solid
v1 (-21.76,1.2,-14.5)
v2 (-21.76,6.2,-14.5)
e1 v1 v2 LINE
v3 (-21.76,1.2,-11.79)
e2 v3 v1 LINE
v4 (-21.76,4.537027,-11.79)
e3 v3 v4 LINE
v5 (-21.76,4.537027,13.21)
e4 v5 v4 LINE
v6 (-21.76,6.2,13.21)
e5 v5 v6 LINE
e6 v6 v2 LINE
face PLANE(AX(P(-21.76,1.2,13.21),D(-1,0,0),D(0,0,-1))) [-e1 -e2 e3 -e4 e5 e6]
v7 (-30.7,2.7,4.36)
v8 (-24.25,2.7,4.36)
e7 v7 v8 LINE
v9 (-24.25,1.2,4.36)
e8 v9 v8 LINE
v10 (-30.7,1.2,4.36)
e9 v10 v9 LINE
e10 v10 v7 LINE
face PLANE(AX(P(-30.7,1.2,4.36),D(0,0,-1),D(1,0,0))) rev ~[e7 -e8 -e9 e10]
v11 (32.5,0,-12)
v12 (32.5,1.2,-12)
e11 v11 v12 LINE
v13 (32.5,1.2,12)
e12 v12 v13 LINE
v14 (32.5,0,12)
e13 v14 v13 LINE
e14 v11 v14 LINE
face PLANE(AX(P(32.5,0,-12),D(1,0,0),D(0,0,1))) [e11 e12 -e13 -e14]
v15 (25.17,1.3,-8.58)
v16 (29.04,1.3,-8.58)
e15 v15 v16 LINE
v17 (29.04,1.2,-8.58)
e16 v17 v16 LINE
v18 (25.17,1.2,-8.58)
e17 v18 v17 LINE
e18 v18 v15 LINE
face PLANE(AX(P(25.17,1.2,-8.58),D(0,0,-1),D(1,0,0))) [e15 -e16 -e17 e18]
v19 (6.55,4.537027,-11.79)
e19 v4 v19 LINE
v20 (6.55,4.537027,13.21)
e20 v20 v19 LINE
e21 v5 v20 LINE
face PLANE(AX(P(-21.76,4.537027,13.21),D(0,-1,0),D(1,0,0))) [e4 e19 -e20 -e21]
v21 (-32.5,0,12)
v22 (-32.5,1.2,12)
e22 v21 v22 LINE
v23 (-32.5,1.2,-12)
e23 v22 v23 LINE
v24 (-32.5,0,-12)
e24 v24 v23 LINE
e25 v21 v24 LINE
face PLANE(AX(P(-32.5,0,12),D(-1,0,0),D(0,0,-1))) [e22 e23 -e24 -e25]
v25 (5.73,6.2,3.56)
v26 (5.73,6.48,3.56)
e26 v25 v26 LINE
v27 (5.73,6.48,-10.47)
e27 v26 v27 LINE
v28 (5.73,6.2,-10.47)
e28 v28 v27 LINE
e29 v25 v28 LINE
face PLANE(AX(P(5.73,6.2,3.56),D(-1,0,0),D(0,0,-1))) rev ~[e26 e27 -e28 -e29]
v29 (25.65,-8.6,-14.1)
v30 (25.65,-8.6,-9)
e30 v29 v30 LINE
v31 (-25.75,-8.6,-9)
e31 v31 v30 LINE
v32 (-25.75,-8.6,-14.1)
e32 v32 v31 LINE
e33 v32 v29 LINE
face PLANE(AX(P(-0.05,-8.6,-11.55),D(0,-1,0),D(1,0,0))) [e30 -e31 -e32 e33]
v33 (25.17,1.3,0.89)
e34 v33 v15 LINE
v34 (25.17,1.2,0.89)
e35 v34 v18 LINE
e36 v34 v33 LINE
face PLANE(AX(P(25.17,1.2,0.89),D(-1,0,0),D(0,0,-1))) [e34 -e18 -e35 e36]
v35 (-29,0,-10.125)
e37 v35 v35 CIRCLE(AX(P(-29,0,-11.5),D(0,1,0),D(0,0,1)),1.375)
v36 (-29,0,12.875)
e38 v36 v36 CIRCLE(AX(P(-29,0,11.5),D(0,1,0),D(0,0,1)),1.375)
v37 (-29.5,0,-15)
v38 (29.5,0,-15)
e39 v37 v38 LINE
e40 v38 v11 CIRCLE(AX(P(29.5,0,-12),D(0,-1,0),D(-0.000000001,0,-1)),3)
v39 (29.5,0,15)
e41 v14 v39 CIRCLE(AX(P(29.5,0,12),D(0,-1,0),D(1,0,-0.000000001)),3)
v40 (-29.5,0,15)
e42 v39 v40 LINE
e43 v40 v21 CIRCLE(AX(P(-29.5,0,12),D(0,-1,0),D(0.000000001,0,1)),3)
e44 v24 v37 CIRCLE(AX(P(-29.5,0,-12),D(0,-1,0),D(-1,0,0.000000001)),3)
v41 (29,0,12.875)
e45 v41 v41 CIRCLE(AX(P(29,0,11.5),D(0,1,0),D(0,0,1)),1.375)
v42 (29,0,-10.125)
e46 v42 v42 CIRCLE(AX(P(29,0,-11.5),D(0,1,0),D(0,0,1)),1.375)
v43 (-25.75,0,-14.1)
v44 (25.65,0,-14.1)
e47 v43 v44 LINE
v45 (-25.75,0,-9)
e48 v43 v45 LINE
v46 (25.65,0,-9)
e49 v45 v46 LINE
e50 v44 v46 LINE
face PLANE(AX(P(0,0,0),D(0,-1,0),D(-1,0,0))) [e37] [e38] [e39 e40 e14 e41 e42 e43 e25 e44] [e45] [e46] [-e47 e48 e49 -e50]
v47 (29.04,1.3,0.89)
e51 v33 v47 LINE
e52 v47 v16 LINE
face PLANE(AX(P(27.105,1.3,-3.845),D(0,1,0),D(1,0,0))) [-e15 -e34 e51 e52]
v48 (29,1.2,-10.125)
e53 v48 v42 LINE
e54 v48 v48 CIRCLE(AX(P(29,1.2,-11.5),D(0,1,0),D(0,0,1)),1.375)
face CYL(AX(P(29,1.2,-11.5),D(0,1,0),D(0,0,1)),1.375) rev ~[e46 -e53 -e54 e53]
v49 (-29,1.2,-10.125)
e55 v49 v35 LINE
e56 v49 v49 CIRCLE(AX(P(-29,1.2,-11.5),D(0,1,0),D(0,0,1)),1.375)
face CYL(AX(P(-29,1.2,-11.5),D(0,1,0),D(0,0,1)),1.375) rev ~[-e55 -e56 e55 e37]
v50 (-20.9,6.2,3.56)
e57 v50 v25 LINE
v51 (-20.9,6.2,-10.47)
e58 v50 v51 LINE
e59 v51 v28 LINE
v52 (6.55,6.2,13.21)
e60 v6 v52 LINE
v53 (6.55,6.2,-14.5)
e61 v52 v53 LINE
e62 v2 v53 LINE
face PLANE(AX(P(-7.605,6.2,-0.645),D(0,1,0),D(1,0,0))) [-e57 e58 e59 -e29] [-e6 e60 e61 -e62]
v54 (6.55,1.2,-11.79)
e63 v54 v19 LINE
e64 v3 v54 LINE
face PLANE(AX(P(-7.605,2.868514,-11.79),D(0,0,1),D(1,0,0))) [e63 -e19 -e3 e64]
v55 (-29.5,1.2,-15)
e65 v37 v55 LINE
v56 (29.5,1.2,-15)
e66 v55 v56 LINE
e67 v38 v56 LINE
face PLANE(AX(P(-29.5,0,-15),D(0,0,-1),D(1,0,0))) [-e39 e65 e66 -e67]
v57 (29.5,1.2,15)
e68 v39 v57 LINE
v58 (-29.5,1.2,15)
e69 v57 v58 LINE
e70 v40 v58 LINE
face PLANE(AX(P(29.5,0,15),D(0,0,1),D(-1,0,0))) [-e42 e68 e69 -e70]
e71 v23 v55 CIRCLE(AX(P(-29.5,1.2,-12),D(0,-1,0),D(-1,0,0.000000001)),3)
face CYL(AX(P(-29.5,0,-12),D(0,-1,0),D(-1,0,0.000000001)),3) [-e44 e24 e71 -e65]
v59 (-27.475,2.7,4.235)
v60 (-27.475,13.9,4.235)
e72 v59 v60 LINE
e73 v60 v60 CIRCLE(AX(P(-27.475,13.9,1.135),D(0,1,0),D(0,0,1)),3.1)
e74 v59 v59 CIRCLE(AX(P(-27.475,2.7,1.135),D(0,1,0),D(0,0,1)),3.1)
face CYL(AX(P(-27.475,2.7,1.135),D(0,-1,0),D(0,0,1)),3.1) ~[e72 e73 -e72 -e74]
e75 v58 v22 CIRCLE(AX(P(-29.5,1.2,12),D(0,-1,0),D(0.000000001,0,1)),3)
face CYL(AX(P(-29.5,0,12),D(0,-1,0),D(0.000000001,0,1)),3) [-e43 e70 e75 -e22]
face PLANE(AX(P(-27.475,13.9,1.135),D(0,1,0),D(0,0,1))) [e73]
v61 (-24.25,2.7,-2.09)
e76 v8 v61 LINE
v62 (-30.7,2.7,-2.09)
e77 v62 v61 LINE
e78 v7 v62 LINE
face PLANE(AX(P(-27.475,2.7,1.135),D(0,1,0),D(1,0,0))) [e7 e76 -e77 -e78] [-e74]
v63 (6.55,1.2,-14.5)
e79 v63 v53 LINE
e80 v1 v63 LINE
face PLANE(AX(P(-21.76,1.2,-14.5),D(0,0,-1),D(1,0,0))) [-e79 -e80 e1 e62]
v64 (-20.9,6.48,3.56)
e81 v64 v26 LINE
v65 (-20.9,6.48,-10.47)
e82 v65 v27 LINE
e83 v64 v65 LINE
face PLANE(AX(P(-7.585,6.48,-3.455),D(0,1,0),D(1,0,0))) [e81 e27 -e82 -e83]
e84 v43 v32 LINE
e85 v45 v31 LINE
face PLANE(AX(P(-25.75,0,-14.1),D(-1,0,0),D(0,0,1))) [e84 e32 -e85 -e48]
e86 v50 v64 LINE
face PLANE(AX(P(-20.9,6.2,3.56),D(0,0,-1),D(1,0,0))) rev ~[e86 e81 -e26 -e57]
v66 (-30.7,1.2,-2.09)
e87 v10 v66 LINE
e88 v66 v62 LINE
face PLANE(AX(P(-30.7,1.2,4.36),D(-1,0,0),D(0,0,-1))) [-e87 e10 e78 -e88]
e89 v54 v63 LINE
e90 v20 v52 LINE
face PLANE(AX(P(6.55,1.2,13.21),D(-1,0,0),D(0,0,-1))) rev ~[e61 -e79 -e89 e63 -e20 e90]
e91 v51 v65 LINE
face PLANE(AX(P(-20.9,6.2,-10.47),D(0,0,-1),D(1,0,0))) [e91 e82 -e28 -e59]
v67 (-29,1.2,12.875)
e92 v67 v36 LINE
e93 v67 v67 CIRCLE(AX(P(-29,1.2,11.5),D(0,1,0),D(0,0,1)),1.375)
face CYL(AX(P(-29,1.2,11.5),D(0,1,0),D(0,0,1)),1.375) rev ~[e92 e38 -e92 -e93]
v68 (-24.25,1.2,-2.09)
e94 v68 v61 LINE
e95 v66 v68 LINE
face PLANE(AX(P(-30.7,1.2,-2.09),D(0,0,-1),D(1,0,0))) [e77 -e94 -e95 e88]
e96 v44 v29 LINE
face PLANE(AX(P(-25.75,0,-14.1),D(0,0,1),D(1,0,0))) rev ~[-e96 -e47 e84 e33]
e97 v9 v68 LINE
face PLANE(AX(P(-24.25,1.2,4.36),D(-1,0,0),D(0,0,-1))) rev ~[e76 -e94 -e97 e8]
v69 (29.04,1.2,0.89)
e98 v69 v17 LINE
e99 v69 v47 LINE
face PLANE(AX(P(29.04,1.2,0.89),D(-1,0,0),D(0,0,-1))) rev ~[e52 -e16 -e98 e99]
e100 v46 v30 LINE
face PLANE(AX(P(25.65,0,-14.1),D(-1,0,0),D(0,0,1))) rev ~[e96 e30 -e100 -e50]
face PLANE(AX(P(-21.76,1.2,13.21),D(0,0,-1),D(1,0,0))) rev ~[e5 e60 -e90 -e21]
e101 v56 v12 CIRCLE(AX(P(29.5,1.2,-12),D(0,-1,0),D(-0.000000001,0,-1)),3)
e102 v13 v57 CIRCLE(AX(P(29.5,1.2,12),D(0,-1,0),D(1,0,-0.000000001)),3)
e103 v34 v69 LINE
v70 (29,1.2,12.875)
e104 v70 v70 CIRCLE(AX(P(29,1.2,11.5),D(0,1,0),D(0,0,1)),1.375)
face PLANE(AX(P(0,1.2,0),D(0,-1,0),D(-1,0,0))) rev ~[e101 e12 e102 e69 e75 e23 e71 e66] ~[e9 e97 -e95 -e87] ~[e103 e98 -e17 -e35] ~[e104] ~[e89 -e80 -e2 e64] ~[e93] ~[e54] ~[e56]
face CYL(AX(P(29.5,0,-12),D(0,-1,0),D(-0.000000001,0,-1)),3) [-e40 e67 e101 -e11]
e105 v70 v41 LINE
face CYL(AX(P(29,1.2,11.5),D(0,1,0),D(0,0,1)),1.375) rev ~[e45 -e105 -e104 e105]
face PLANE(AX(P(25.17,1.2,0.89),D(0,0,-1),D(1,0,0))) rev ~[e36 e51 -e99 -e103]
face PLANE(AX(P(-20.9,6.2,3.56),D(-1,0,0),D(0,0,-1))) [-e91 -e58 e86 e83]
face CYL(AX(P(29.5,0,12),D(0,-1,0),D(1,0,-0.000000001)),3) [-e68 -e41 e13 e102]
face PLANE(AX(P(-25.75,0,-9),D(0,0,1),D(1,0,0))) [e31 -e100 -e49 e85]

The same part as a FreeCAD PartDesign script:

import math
import FreeCAD as App
import Part
import Sketcher

doc = App.newDocument("Part")
params = doc.addObject("Spreadsheet::Sheet", "Params")
for row, (alias, value) in enumerate([
    ("sketch1_radius", "3 mm"),
    ("sketch1_width", "59 mm"),
    ("sketch1_height", "24 mm"),
    ("pad1_length", "1.2 mm"),
    ("sketch2_diameter", "2.75 mm"),
    ("pocket1_length", "1.2 mm"),
    ("sketch3_width", "51.4 mm"),
    ("sketch3_height", "5.1 mm"),
    ("pad2_length", "8.6 mm"),
    ("sketch4_width", "6.45 mm"),
    ("pad3_length", "1.5 mm"),
    ("sketch5_diameter", "6.2 mm"),
    ("pad4_length", "11.2 mm"),
    ("sketch6_width", "28.31 mm"),
    ("sketch6_height", "27.71 mm"),
    ("pad5_length", "5 mm"),
    ("sketch7_width", "26.63 mm"),
    ("sketch7_height", "14.03 mm"),
    ("pad6_length", "0.28 mm"),
    ("sketch8_width", "3.87 mm"),
    ("sketch8_height", "9.47 mm"),
    ("pad7_length", "0.1 mm"),
    ("sketch9_width", "28.31 mm"),
    ("pocket2_length", "25 mm"),
], start=1):
    params.set(f"A{row}", alias)
    params.set(f"B{row}", "=" + value)
    params.setAlias(f"B{row}", alias)

body = doc.addObject("PartDesign::Body", "Body")

# Sketch on XZ plane
sketch1 = body.newObject("Sketcher::SketchObject", "Sketch")
sketch1.AttachmentSupport = (doc.getObject("XZ_Plane"), [""])
sketch1.MapMode = "FlatFace"
sketch1.addGeometry(Part.LineSegment(App.Vector(29.5, -15, 0), App.Vector(-29.5, -15, 0)), False)
sketch1.addGeometry(Part.ArcOfCircle(Part.Circle(App.Vector(-29.5, -12, 0), App.Vector(0, 0, 1), 3), math.radians(180), math.radians(270)), False)
sketch1.addGeometry(Part.LineSegment(App.Vector(-32.5, -12, 0), App.Vector(-32.5, 12, 0)), False)
sketch1.addGeometry(Part.ArcOfCircle(Part.Circle(App.Vector(-29.5, 12, 0), App.Vector(0, 0, 1), 3), math.radians(90), math.radians(180)), False)
sketch1.addGeometry(Part.LineSegment(App.Vector(-29.5, 15, 0), App.Vector(29.5, 15, 0)), False)
sketch1.addGeometry(Part.ArcOfCircle(Part.Circle(App.Vector(29.5, 12, 0), App.Vector(0, 0, 1), 3), math.radians(0), math.radians(90)), False)
sketch1.addGeometry(Part.LineSegment(App.Vector(32.5, 12, 0), App.Vector(32.5, -12, 0)), False)
sketch1.addGeometry(Part.ArcOfCircle(Part.Circle(App.Vector(29.5, -12, 0), App.Vector(0, 0, 1), 3), math.radians(-90), math.radians(0)), False)
sketch1.addConstraint(Sketcher.Constraint("Tangent", 0, 2, 1, 2))
sketch1.addConstraint(Sketcher.Constraint("Tangent", 1, 1, 2, 1))
sketch1.addConstraint(Sketcher.Constraint("Tangent", 2, 2, 3, 2))
sketch1.addConstraint(Sketcher.Constraint("Tangent", 3, 1, 4, 1))
sketch1.addConstraint(Sketcher.Constraint("Tangent", 4, 2, 5, 2))
sketch1.addConstraint(Sketcher.Constraint("Tangent", 5, 1, 6, 1))
sketch1.addConstraint(Sketcher.Constraint("Tangent", 6, 2, 7, 2))
sketch1.addConstraint(Sketcher.Constraint("Tangent", 7, 1, 0, 1))
sketch1.addConstraint(Sketcher.Constraint("Horizontal", 0))
sketch1.addConstraint(Sketcher.Constraint("Vertical", 2))
sketch1.addConstraint(Sketcher.Constraint("Horizontal", 4))
sketch1.addConstraint(Sketcher.Constraint("Vertical", 6))
sketch1.addConstraint(Sketcher.Constraint("Equal", 1, 3))
sketch1.addConstraint(Sketcher.Constraint("Equal", 3, 5))
sketch1.addConstraint(Sketcher.Constraint("Equal", 5, 7))
sketch1.addConstraint(Sketcher.Constraint("Symmetric", 1, 3, 5, 3, -1, 1))
sketch1.addConstraint(Sketcher.Constraint("Radius", 1, 3.0))
sketch1.addConstraint(Sketcher.Constraint("DistanceX", 0, 2, 0, 1, 59.0))
sketch1.addConstraint(Sketcher.Constraint("DistanceY", 2, 1, 2, 2, 24.0))
sketch1.setExpression("Constraints[16]", "Params.sketch1_radius")
sketch1.setExpression("Constraints[17]", "Params.sketch1_width")
sketch1.setExpression("Constraints[18]", "Params.sketch1_height")
pad1 = body.newObject("PartDesign::Pad", "Pad")
pad1.Profile = sketch1
pad1.setExpression("Length", "Params.pad1_length")
pad1.Reversed = True

# Sketch on XZ plane
sketch2 = body.newObject("Sketcher::SketchObject", "Sketch001")
sketch2.AttachmentSupport = (doc.getObject("XZ_Plane"), [""])
sketch2.MapMode = "FlatFace"
sketch2.AttachmentOffset = App.Placement(App.Vector(0, 0, -1.2), App.Rotation())
sketch2.addGeometry(Part.Circle(App.Vector(29, 11.5, 0), App.Vector(0, 0, 1), 1.4), False)
sketch2.addGeometry(Part.Circle(App.Vector(29, -11.5, 0), App.Vector(0, 0, 1), 1.4), False)
sketch2.addGeometry(Part.Circle(App.Vector(-29, 11.5, 0), App.Vector(0, 0, 1), 1.4), False)
sketch2.addGeometry(Part.Circle(App.Vector(-29, -11.5, 0), App.Vector(0, 0, 1), 1.4), False)
sketch2.addConstraint(Sketcher.Constraint("Equal", 0, 1))
sketch2.addConstraint(Sketcher.Constraint("Equal", 1, 2))
sketch2.addConstraint(Sketcher.Constraint("Equal", 2, 3))
sketch2.addConstraint(Sketcher.Constraint("Symmetric", 1, 3, 2, 3, -1, 1))
sketch2.addConstraint(Sketcher.Constraint("Symmetric", 0, 3, 3, 3, -1, 1))
sketch2.addConstraint(Sketcher.Constraint("Symmetric", 0, 3, 2, 3, -2))
sketch2.addConstraint(Sketcher.Constraint("Diameter", 0, 2.75))
sketch2.addConstraint(Sketcher.Constraint("DistanceX", -1, 1, 0, 3, 29.0))
sketch2.addConstraint(Sketcher.Constraint("DistanceY", 1, 3, 0, 3, 23.0))
sketch2.setExpression("Constraints[6]", "Params.sketch2_diameter")
pocket1 = body.newObject("PartDesign::Pocket", "Pocket")
pocket1.Profile = sketch2
pocket1.setExpression("Length", "Params.pocket1_length")
pocket1.Reversed = True

# Sketch on XZ plane
sketch3 = body.newObject("Sketcher::SketchObject", "Sketch002")
sketch3.AttachmentSupport = (doc.getObject("XZ_Plane"), [""])
sketch3.MapMode = "FlatFace"
sketch3.addGeometry(Part.LineSegment(App.Vector(-26, -9, 0), App.Vector(-26, -14, 0)), False)
sketch3.addGeometry(Part.LineSegment(App.Vector(-26, -14, 0), App.Vector(26, -14, 0)), False)
sketch3.addGeometry(Part.LineSegment(App.Vector(26, -14, 0), App.Vector(26, -9, 0)), False)
sketch3.addGeometry(Part.LineSegment(App.Vector(26, -9, 0), App.Vector(-26, -9, 0)), False)
sketch3.addConstraint(Sketcher.Constraint("Coincident", 0, 2, 1, 1))
sketch3.addConstraint(Sketcher.Constraint("Coincident", 1, 2, 2, 1))
sketch3.addConstraint(Sketcher.Constraint("Coincident", 2, 2, 3, 1))
sketch3.addConstraint(Sketcher.Constraint("Coincident", 3, 2, 0, 1))
sketch3.addConstraint(Sketcher.Constraint("Vertical", 0))
sketch3.addConstraint(Sketcher.Constraint("Horizontal", 1))
sketch3.addConstraint(Sketcher.Constraint("Vertical", 2))
sketch3.addConstraint(Sketcher.Constraint("Horizontal", 3))
sketch3.addConstraint(Sketcher.Constraint("DistanceX", 1, 1, 1, 2, 51.4))
sketch3.addConstraint(Sketcher.Constraint("DistanceY", 0, 2, 0, 1, 5.1))
sketch3.addConstraint(Sketcher.Constraint("DistanceY", 2, 2, -1, 1, 9.0))
sketch3.addConstraint(Sketcher.Constraint("DistanceX", 0, 2, -1, 1, 25.75))
sketch3.setExpression("Constraints[8]", "Params.sketch3_width")
sketch3.setExpression("Constraints[9]", "Params.sketch3_height")
pad2 = body.newObject("PartDesign::Pad", "Pad001")
pad2.Profile = sketch3
pad2.setExpression("Length", "Params.pad2_length")

# Sketch on XZ plane
sketch4 = body.newObject("Sketcher::SketchObject", "Sketch003")
sketch4.AttachmentSupport = (doc.getObject("XZ_Plane"), [""])
sketch4.MapMode = "FlatFace"
sketch4.AttachmentOffset = App.Placement(App.Vector(0, 0, -1.2), App.Rotation())
sketch4.addGeometry(Part.LineSegment(App.Vector(-31, -2, 0), App.Vector(-31, 4, 0)), False)
sketch4.addGeometry(Part.LineSegment(App.Vector(-31, 4, 0), App.Vector(-24, 4, 0)), False)
sketch4.addGeometry(Part.LineSegment(App.Vector(-24, 4, 0), App.Vector(-24, -2, 0)), False)
sketch4.addGeometry(Part.LineSegment(App.Vector(-24, -2, 0), App.Vector(-31, -2, 0)), False)
sketch4.addConstraint(Sketcher.Constraint("Coincident", 0, 2, 1, 1))
sketch4.addConstraint(Sketcher.Constraint("Coincident", 1, 2, 2, 1))
sketch4.addConstraint(Sketcher.Constraint("Coincident", 2, 2, 3, 1))
sketch4.addConstraint(Sketcher.Constraint("Coincident", 3, 2, 0, 1))
sketch4.addConstraint(Sketcher.Constraint("Vertical", 0))
sketch4.addConstraint(Sketcher.Constraint("Horizontal", 1))
sketch4.addConstraint(Sketcher.Constraint("Vertical", 2))
sketch4.addConstraint(Sketcher.Constraint("Horizontal", 3))
sketch4.addConstraint(Sketcher.Constraint("Equal", 3, 0))
sketch4.addConstraint(Sketcher.Constraint("DistanceX", 1, 1, 1, 2, 6.45))
sketch4.addConstraint(Sketcher.Constraint("DistanceX", 0, 2, -1, 1, 30.7))
sketch4.addConstraint(Sketcher.Constraint("DistanceY", -1, 1, 0, 2, 4.36))
sketch4.setExpression("Constraints[9]", "Params.sketch4_width")
pad3 = body.newObject("PartDesign::Pad", "Pad002")
pad3.Profile = sketch4
pad3.setExpression("Length", "Params.pad3_length")
pad3.Reversed = True

# Sketch on XZ plane
sketch5 = body.newObject("Sketcher::SketchObject", "Sketch004")
sketch5.AttachmentSupport = (doc.getObject("XZ_Plane"), [""])
sketch5.MapMode = "FlatFace"
sketch5.AttachmentOffset = App.Placement(App.Vector(0, 0, -2.7), App.Rotation())
sketch5.addGeometry(Part.Circle(App.Vector(-27.5, 1.1, 0), App.Vector(0, 0, 1), 3.1), False)
sketch5.addConstraint(Sketcher.Constraint("Diameter", 0, 6.2))
sketch5.addConstraint(Sketcher.Constraint("DistanceX", 0, 3, -1, 1, 27.475))
sketch5.addConstraint(Sketcher.Constraint("DistanceY", -1, 1, 0, 3, 1.135))
sketch5.setExpression("Constraints[0]", "Params.sketch5_diameter")
pad4 = body.newObject("PartDesign::Pad", "Pad003")
pad4.Profile = sketch5
pad4.setExpression("Length", "Params.pad4_length")
pad4.Reversed = True

# Sketch on XZ plane
sketch6 = body.newObject("Sketcher::SketchObject", "Sketch005")
sketch6.AttachmentSupport = (doc.getObject("XZ_Plane"), [""])
sketch6.MapMode = "FlatFace"
sketch6.AttachmentOffset = App.Placement(App.Vector(0, 0, -1.2), App.Rotation())
sketch6.addGeometry(Part.LineSegment(App.Vector(-22, -14, 0), App.Vector(-22, 13, 0)), False)
sketch6.addGeometry(Part.LineSegment(App.Vector(-22, 13, 0), App.Vector(7, 13, 0)), False)
sketch6.addGeometry(Part.LineSegment(App.Vector(7, 13, 0), App.Vector(7, -14, 0)), False)
sketch6.addGeometry(Part.LineSegment(App.Vector(7, -14, 0), App.Vector(-22, -14, 0)), False)
sketch6.addConstraint(Sketcher.Constraint("Coincident", 0, 2, 1, 1))
sketch6.addConstraint(Sketcher.Constraint("Coincident", 1, 2, 2, 1))
sketch6.addConstraint(Sketcher.Constraint("Coincident", 2, 2, 3, 1))
sketch6.addConstraint(Sketcher.Constraint("Coincident", 3, 2, 0, 1))
sketch6.addConstraint(Sketcher.Constraint("Vertical", 0))
sketch6.addConstraint(Sketcher.Constraint("Horizontal", 1))
sketch6.addConstraint(Sketcher.Constraint("Vertical", 2))
sketch6.addConstraint(Sketcher.Constraint("Horizontal", 3))
sketch6.addConstraint(Sketcher.Constraint("DistanceX", 1, 1, 1, 2, 28.31))
sketch6.addConstraint(Sketcher.Constraint("DistanceY", 0, 1, 0, 2, 27.71))
sketch6.addConstraint(Sketcher.Constraint("DistanceY", 2, 2, -1, 1, 14.5))
sketch6.addConstraint(Sketcher.Constraint("DistanceX", 0, 2, -1, 1, 21.76))
sketch6.setExpression("Constraints[8]", "Params.sketch6_width")
sketch6.setExpression("Constraints[9]", "Params.sketch6_height")
pad5 = body.newObject("PartDesign::Pad", "Pad004")
pad5.Profile = sketch6
pad5.setExpression("Length", "Params.pad5_length")
pad5.Reversed = True

# Sketch on XZ plane
sketch7 = body.newObject("Sketcher::SketchObject", "Sketch006")
sketch7.AttachmentSupport = (doc.getObject("XZ_Plane"), [""])
sketch7.MapMode = "FlatFace"
sketch7.AttachmentOffset = App.Placement(App.Vector(0, 0, -6.2), App.Rotation())
sketch7.addGeometry(Part.LineSegment(App.Vector(-21, -10, 0), App.Vector(-21, 4, 0)), False)
sketch7.addGeometry(Part.LineSegment(App.Vector(-21, 4, 0), App.Vector(6, 4, 0)), False)
sketch7.addGeometry(Part.LineSegment(App.Vector(6, 4, 0), App.Vector(6, -10, 0)), False)
sketch7.addGeometry(Part.LineSegment(App.Vector(6, -10, 0), App.Vector(-21, -10, 0)), False)
sketch7.addConstraint(Sketcher.Constraint("Coincident", 0, 2, 1, 1))
sketch7.addConstraint(Sketcher.Constraint("Coincident", 1, 2, 2, 1))
sketch7.addConstraint(Sketcher.Constraint("Coincident", 2, 2, 3, 1))
sketch7.addConstraint(Sketcher.Constraint("Coincident", 3, 2, 0, 1))
sketch7.addConstraint(Sketcher.Constraint("Vertical", 0))
sketch7.addConstraint(Sketcher.Constraint("Horizontal", 1))
sketch7.addConstraint(Sketcher.Constraint("Vertical", 2))
sketch7.addConstraint(Sketcher.Constraint("Horizontal", 3))
sketch7.addConstraint(Sketcher.Constraint("DistanceX", 1, 1, 1, 2, 26.63))
sketch7.addConstraint(Sketcher.Constraint("DistanceY", 0, 1, 0, 2, 14.03))
sketch7.addConstraint(Sketcher.Constraint("DistanceX", 0, 2, -1, 1, 20.9))
sketch7.addConstraint(Sketcher.Constraint("DistanceY", -1, 1, 0, 2, 3.56))
sketch7.setExpression("Constraints[8]", "Params.sketch7_width")
sketch7.setExpression("Constraints[9]", "Params.sketch7_height")
pad6 = body.newObject("PartDesign::Pad", "Pad005")
pad6.Profile = sketch7
pad6.setExpression("Length", "Params.pad6_length")
pad6.Reversed = True

# Sketch on XZ plane
sketch8 = body.newObject("Sketcher::SketchObject", "Sketch007")
sketch8.AttachmentSupport = (doc.getObject("XZ_Plane"), [""])
sketch8.MapMode = "FlatFace"
sketch8.AttachmentOffset = App.Placement(App.Vector(0, 0, -1.2), App.Rotation())
sketch8.addGeometry(Part.LineSegment(App.Vector(25.2, -8.6, 0), App.Vector(25.2, 0.9, 0)), False)
sketch8.addGeometry(Part.LineSegment(App.Vector(25.2, 0.9, 0), App.Vector(29, 0.9, 0)), False)
sketch8.addGeometry(Part.LineSegment(App.Vector(29, 0.9, 0), App.Vector(29, -8.6, 0)), False)
sketch8.addGeometry(Part.LineSegment(App.Vector(29, -8.6, 0), App.Vector(25.2, -8.6, 0)), False)
sketch8.addConstraint(Sketcher.Constraint("Coincident", 0, 2, 1, 1))
sketch8.addConstraint(Sketcher.Constraint("Coincident", 1, 2, 2, 1))
sketch8.addConstraint(Sketcher.Constraint("Coincident", 2, 2, 3, 1))
sketch8.addConstraint(Sketcher.Constraint("Coincident", 3, 2, 0, 1))
sketch8.addConstraint(Sketcher.Constraint("Vertical", 0))
sketch8.addConstraint(Sketcher.Constraint("Horizontal", 1))
sketch8.addConstraint(Sketcher.Constraint("Vertical", 2))
sketch8.addConstraint(Sketcher.Constraint("Horizontal", 3))
sketch8.addConstraint(Sketcher.Constraint("DistanceX", 1, 1, 1, 2, 3.87))
sketch8.addConstraint(Sketcher.Constraint("DistanceY", 0, 1, 0, 2, 9.47))
sketch8.addConstraint(Sketcher.Constraint("DistanceX", -1, 1, 0, 2, 25.17))
sketch8.addConstraint(Sketcher.Constraint("DistanceY", -1, 1, 0, 2, 0.89))
sketch8.setExpression("Constraints[8]", "Params.sketch8_width")
sketch8.setExpression("Constraints[9]", "Params.sketch8_height")
pad7 = body.newObject("PartDesign::Pad", "Pad006")
pad7.Profile = sketch8
pad7.setExpression("Length", "Params.pad7_length")
pad7.Reversed = True

# Sketch on XY plane
sketch9 = body.newObject("Sketcher::SketchObject", "Sketch008")
sketch9.AttachmentSupport = (doc.getObject("XY_Plane"), [""])
sketch9.MapMode = "FlatFace"
sketch9.AttachmentOffset = App.Placement(App.Vector(0, 0, 13.21), App.Rotation())
sketch9.addGeometry(Part.LineSegment(App.Vector(-21.8, 4.5, 0), App.Vector(-21.8, 1.2, 0)), False)
sketch9.addGeometry(Part.LineSegment(App.Vector(-21.8, 1.2, 0), App.Vector(6.5, 1.2, 0)), False)
sketch9.addGeometry(Part.LineSegment(App.Vector(6.5, 1.2, 0), App.Vector(6.5, 4.5, 0)), False)
sketch9.addGeometry(Part.LineSegment(App.Vector(6.5, 4.5, 0), App.Vector(-21.8, 4.5, 0)), False)
sketch9.addConstraint(Sketcher.Constraint("Coincident", 0, 2, 1, 1))
sketch9.addConstraint(Sketcher.Constraint("Coincident", 1, 2, 2, 1))
sketch9.addConstraint(Sketcher.Constraint("Coincident", 2, 2, 3, 1))
sketch9.addConstraint(Sketcher.Constraint("Coincident", 3, 2, 0, 1))
sketch9.addConstraint(Sketcher.Constraint("Vertical", 0))
sketch9.addConstraint(Sketcher.Constraint("Horizontal", 1))
sketch9.addConstraint(Sketcher.Constraint("Vertical", 2))
sketch9.addConstraint(Sketcher.Constraint("Horizontal", 3))
sketch9.addConstraint(Sketcher.Constraint("DistanceX", 1, 1, 1, 2, 28.31))
sketch9.addConstraint(Sketcher.Constraint("DistanceY", -1, 1, 0, 2, 1.2))
sketch9.addConstraint(Sketcher.Constraint("DistanceX", 0, 2, -1, 1, 21.76))
sketch9.addConstraint(Sketcher.Constraint("DistanceY", 0, 2, 0, 1, 3.337027))
sketch9.setExpression("Constraints[8]", "Params.sketch9_width")
pocket2 = body.newObject("PartDesign::Pocket", "Pocket001")
pocket2.Profile = sketch9
pocket2.setExpression("Length", "Params.pocket2_length")

doc.recompute()
